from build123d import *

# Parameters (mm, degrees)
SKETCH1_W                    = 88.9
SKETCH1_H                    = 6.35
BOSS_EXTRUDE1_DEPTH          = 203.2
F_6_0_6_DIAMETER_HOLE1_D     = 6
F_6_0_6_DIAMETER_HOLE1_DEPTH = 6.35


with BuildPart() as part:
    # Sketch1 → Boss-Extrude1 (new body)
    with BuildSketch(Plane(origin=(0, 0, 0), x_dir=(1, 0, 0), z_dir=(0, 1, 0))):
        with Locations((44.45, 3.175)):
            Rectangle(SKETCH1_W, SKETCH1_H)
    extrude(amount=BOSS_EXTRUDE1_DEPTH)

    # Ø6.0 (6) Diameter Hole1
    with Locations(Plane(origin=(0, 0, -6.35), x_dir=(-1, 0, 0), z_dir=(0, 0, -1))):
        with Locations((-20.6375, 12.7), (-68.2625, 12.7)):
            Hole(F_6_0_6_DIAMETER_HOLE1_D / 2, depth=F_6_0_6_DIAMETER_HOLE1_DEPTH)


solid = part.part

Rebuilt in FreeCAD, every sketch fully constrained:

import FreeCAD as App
import Part
import Sketcher

V = App.Vector
Q = App.Units.Quantity


def add_polygon(sketch, points):
    """Adds a closed chain of lines whose ends are joined by coincident constraints."""
    first, n = sketch.GeometryCount, len(points)
    for a, b in zip(points, points[1:] + points[:1]):
        sketch.addGeometry(Part.LineSegment(App.Vector(*a, 0), App.Vector(*b, 0)), False)
    for i in range(n):
        sketch.addConstraint(Sketcher.Constraint("Coincident", first + i, 2, first + (i + 1) % n, 1))

doc = App.newDocument("Part")
body = doc.addObject("PartDesign::Body", "Body")

sketch1 = doc.addObject("Sketcher::SketchObject", "Sketch")
body.addObject(sketch1)
sketch1.AttachmentSupport = (doc.XZ_Plane, [""])
sketch1.MapMode = "FlatFace"
add_polygon(sketch1, [(0, -6.35), (0, 0), (88.9, 0), (88.9, -6.35)])
sketch1.addConstraint(Sketcher.Constraint("Vertical", 0))
sketch1.addConstraint(Sketcher.Constraint("Horizontal", 1))
sketch1.addConstraint(Sketcher.Constraint("Vertical", 2))
sketch1.addConstraint(Sketcher.Constraint("Horizontal", 3))
sketch1.addConstraint(Sketcher.Constraint("Coincident", 0, 2, -1, 1))
sketch1.addConstraint(Sketcher.Constraint("DistanceX", 1, 1, 1, 2, Q("3.5 in")))
sketch1.addConstraint(Sketcher.Constraint("DistanceY", 0, 1, 0, 2, Q("0.25 in")))
pad1 = doc.addObject("PartDesign::Pad", "Pad")
body.addObject(pad1)
pad1.Profile = sketch1
pad1.Length = Q("8 in")
pad1.Reversed = True

sketch2 = doc.addObject("Sketcher::SketchObject", "Sketch001")
body.addObject(sketch2)
sketch2.AttachmentSupport = (doc.XY_Plane, [""])
sketch2.MapMode = "FlatFace"
sketch2.AttachmentOffset = App.Placement(V(0, 0, -0.25 * 25.4), App.Rotation())
sketch2.addGeometry(Part.Circle(V(20.6375, 12.7, 0), V(0, 0, 1), 3), False)
sketch2.addGeometry(Part.Circle(V(68.2625, 12.7, 0), V(0, 0, 1), 3), False)
sketch2.addConstraint(Sketcher.Constraint("Equal", 0, 1))
sketch2.addConstraint(Sketcher.Constraint("Horizontal", 0, 3, 1, 3))
sketch2.addConstraint(Sketcher.Constraint("DistanceY", -1, 1, 0, 3, Q("0.5 in")))
sketch2.addConstraint(Sketcher.Constraint("Diameter", 0, Q("6 mm")))
sketch2.addConstraint(Sketcher.Constraint("DistanceX", -1, 1, 0, 3, Q("0.8125 in")))
sketch2.addConstraint(Sketcher.Constraint("DistanceX", -1, 1, 1, 3, Q("2.6875 in")))
doc.recompute()
hole = doc.addObject("PartDesign::Hole", "Hole")
body.addObject(hole)
hole.Profile = sketch2
hole.ThreadType = "None"
hole.Diameter = 6
hole.DepthType = "Dimension"
hole.Depth = Q("0.25 in")
hole.DrillPoint = "Flat"
hole.Reversed = True

doc.recompute()
